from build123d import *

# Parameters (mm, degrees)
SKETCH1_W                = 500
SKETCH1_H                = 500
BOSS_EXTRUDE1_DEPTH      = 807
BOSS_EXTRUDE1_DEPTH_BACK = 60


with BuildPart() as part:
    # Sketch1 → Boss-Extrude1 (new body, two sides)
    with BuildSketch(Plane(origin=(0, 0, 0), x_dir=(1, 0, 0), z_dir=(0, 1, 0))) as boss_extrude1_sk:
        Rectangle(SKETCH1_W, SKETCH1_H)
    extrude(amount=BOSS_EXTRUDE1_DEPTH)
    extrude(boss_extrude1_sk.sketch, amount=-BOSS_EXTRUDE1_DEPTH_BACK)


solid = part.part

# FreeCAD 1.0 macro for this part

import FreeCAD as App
import Part
import Sketcher
Q = App.Units.Quantity


def add_polygon(sketch, points):
    """Adds a closed chain of lines whose ends are joined by coincident constraints."""
    first, n = sketch.GeometryCount, len(points)
    for a, b in zip(points, points[1:] + points[:1]):
        sketch.addGeometry(Part.LineSegment(App.Vector(*a, 0), App.Vector(*b, 0)), False)
    for i in range(n):
        sketch.addConstraint(Sketcher.Constraint("Coincident", first + i, 2, first + (i + 1) % n, 1))

doc = App.newDocument("Part")
body = doc.addObject("PartDesign::Body", "Body")

sketch1 = body.newObject("Sketcher::SketchObject", "Sketch")
sketch1.AttachmentSupport = (doc.getObject("XZ_Plane"), [""])
sketch1.MapMode = "FlatFace"
add_polygon(sketch1, [(-250, -250), (-250, 250), (250, 250), (250, -250)])
sketch1.addConstraint([
    Sketcher.Constraint("Vertical", 0),
    Sketcher.Constraint("Horizontal", 1),
    Sketcher.Constraint("Vertical", 2),
    Sketcher.Constraint("Horizontal", 3),
    Sketcher.Constraint("Symmetric", 0, 2, 2, 2, -1, 1),
    Sketcher.Constraint("Equal", 3, 0),
    Sketcher.Constraint("DistanceX", 1, 1, 1, 2, Q("500 mm")),
])
pad1 = body.newObject("PartDesign::Pad", "Pad")
pad1.Profile = sketch1
pad1.Type = "TwoLengths"
pad1.Length = 807
pad1.Length2 = 60
pad1.Reversed = True

doc.recompute()
